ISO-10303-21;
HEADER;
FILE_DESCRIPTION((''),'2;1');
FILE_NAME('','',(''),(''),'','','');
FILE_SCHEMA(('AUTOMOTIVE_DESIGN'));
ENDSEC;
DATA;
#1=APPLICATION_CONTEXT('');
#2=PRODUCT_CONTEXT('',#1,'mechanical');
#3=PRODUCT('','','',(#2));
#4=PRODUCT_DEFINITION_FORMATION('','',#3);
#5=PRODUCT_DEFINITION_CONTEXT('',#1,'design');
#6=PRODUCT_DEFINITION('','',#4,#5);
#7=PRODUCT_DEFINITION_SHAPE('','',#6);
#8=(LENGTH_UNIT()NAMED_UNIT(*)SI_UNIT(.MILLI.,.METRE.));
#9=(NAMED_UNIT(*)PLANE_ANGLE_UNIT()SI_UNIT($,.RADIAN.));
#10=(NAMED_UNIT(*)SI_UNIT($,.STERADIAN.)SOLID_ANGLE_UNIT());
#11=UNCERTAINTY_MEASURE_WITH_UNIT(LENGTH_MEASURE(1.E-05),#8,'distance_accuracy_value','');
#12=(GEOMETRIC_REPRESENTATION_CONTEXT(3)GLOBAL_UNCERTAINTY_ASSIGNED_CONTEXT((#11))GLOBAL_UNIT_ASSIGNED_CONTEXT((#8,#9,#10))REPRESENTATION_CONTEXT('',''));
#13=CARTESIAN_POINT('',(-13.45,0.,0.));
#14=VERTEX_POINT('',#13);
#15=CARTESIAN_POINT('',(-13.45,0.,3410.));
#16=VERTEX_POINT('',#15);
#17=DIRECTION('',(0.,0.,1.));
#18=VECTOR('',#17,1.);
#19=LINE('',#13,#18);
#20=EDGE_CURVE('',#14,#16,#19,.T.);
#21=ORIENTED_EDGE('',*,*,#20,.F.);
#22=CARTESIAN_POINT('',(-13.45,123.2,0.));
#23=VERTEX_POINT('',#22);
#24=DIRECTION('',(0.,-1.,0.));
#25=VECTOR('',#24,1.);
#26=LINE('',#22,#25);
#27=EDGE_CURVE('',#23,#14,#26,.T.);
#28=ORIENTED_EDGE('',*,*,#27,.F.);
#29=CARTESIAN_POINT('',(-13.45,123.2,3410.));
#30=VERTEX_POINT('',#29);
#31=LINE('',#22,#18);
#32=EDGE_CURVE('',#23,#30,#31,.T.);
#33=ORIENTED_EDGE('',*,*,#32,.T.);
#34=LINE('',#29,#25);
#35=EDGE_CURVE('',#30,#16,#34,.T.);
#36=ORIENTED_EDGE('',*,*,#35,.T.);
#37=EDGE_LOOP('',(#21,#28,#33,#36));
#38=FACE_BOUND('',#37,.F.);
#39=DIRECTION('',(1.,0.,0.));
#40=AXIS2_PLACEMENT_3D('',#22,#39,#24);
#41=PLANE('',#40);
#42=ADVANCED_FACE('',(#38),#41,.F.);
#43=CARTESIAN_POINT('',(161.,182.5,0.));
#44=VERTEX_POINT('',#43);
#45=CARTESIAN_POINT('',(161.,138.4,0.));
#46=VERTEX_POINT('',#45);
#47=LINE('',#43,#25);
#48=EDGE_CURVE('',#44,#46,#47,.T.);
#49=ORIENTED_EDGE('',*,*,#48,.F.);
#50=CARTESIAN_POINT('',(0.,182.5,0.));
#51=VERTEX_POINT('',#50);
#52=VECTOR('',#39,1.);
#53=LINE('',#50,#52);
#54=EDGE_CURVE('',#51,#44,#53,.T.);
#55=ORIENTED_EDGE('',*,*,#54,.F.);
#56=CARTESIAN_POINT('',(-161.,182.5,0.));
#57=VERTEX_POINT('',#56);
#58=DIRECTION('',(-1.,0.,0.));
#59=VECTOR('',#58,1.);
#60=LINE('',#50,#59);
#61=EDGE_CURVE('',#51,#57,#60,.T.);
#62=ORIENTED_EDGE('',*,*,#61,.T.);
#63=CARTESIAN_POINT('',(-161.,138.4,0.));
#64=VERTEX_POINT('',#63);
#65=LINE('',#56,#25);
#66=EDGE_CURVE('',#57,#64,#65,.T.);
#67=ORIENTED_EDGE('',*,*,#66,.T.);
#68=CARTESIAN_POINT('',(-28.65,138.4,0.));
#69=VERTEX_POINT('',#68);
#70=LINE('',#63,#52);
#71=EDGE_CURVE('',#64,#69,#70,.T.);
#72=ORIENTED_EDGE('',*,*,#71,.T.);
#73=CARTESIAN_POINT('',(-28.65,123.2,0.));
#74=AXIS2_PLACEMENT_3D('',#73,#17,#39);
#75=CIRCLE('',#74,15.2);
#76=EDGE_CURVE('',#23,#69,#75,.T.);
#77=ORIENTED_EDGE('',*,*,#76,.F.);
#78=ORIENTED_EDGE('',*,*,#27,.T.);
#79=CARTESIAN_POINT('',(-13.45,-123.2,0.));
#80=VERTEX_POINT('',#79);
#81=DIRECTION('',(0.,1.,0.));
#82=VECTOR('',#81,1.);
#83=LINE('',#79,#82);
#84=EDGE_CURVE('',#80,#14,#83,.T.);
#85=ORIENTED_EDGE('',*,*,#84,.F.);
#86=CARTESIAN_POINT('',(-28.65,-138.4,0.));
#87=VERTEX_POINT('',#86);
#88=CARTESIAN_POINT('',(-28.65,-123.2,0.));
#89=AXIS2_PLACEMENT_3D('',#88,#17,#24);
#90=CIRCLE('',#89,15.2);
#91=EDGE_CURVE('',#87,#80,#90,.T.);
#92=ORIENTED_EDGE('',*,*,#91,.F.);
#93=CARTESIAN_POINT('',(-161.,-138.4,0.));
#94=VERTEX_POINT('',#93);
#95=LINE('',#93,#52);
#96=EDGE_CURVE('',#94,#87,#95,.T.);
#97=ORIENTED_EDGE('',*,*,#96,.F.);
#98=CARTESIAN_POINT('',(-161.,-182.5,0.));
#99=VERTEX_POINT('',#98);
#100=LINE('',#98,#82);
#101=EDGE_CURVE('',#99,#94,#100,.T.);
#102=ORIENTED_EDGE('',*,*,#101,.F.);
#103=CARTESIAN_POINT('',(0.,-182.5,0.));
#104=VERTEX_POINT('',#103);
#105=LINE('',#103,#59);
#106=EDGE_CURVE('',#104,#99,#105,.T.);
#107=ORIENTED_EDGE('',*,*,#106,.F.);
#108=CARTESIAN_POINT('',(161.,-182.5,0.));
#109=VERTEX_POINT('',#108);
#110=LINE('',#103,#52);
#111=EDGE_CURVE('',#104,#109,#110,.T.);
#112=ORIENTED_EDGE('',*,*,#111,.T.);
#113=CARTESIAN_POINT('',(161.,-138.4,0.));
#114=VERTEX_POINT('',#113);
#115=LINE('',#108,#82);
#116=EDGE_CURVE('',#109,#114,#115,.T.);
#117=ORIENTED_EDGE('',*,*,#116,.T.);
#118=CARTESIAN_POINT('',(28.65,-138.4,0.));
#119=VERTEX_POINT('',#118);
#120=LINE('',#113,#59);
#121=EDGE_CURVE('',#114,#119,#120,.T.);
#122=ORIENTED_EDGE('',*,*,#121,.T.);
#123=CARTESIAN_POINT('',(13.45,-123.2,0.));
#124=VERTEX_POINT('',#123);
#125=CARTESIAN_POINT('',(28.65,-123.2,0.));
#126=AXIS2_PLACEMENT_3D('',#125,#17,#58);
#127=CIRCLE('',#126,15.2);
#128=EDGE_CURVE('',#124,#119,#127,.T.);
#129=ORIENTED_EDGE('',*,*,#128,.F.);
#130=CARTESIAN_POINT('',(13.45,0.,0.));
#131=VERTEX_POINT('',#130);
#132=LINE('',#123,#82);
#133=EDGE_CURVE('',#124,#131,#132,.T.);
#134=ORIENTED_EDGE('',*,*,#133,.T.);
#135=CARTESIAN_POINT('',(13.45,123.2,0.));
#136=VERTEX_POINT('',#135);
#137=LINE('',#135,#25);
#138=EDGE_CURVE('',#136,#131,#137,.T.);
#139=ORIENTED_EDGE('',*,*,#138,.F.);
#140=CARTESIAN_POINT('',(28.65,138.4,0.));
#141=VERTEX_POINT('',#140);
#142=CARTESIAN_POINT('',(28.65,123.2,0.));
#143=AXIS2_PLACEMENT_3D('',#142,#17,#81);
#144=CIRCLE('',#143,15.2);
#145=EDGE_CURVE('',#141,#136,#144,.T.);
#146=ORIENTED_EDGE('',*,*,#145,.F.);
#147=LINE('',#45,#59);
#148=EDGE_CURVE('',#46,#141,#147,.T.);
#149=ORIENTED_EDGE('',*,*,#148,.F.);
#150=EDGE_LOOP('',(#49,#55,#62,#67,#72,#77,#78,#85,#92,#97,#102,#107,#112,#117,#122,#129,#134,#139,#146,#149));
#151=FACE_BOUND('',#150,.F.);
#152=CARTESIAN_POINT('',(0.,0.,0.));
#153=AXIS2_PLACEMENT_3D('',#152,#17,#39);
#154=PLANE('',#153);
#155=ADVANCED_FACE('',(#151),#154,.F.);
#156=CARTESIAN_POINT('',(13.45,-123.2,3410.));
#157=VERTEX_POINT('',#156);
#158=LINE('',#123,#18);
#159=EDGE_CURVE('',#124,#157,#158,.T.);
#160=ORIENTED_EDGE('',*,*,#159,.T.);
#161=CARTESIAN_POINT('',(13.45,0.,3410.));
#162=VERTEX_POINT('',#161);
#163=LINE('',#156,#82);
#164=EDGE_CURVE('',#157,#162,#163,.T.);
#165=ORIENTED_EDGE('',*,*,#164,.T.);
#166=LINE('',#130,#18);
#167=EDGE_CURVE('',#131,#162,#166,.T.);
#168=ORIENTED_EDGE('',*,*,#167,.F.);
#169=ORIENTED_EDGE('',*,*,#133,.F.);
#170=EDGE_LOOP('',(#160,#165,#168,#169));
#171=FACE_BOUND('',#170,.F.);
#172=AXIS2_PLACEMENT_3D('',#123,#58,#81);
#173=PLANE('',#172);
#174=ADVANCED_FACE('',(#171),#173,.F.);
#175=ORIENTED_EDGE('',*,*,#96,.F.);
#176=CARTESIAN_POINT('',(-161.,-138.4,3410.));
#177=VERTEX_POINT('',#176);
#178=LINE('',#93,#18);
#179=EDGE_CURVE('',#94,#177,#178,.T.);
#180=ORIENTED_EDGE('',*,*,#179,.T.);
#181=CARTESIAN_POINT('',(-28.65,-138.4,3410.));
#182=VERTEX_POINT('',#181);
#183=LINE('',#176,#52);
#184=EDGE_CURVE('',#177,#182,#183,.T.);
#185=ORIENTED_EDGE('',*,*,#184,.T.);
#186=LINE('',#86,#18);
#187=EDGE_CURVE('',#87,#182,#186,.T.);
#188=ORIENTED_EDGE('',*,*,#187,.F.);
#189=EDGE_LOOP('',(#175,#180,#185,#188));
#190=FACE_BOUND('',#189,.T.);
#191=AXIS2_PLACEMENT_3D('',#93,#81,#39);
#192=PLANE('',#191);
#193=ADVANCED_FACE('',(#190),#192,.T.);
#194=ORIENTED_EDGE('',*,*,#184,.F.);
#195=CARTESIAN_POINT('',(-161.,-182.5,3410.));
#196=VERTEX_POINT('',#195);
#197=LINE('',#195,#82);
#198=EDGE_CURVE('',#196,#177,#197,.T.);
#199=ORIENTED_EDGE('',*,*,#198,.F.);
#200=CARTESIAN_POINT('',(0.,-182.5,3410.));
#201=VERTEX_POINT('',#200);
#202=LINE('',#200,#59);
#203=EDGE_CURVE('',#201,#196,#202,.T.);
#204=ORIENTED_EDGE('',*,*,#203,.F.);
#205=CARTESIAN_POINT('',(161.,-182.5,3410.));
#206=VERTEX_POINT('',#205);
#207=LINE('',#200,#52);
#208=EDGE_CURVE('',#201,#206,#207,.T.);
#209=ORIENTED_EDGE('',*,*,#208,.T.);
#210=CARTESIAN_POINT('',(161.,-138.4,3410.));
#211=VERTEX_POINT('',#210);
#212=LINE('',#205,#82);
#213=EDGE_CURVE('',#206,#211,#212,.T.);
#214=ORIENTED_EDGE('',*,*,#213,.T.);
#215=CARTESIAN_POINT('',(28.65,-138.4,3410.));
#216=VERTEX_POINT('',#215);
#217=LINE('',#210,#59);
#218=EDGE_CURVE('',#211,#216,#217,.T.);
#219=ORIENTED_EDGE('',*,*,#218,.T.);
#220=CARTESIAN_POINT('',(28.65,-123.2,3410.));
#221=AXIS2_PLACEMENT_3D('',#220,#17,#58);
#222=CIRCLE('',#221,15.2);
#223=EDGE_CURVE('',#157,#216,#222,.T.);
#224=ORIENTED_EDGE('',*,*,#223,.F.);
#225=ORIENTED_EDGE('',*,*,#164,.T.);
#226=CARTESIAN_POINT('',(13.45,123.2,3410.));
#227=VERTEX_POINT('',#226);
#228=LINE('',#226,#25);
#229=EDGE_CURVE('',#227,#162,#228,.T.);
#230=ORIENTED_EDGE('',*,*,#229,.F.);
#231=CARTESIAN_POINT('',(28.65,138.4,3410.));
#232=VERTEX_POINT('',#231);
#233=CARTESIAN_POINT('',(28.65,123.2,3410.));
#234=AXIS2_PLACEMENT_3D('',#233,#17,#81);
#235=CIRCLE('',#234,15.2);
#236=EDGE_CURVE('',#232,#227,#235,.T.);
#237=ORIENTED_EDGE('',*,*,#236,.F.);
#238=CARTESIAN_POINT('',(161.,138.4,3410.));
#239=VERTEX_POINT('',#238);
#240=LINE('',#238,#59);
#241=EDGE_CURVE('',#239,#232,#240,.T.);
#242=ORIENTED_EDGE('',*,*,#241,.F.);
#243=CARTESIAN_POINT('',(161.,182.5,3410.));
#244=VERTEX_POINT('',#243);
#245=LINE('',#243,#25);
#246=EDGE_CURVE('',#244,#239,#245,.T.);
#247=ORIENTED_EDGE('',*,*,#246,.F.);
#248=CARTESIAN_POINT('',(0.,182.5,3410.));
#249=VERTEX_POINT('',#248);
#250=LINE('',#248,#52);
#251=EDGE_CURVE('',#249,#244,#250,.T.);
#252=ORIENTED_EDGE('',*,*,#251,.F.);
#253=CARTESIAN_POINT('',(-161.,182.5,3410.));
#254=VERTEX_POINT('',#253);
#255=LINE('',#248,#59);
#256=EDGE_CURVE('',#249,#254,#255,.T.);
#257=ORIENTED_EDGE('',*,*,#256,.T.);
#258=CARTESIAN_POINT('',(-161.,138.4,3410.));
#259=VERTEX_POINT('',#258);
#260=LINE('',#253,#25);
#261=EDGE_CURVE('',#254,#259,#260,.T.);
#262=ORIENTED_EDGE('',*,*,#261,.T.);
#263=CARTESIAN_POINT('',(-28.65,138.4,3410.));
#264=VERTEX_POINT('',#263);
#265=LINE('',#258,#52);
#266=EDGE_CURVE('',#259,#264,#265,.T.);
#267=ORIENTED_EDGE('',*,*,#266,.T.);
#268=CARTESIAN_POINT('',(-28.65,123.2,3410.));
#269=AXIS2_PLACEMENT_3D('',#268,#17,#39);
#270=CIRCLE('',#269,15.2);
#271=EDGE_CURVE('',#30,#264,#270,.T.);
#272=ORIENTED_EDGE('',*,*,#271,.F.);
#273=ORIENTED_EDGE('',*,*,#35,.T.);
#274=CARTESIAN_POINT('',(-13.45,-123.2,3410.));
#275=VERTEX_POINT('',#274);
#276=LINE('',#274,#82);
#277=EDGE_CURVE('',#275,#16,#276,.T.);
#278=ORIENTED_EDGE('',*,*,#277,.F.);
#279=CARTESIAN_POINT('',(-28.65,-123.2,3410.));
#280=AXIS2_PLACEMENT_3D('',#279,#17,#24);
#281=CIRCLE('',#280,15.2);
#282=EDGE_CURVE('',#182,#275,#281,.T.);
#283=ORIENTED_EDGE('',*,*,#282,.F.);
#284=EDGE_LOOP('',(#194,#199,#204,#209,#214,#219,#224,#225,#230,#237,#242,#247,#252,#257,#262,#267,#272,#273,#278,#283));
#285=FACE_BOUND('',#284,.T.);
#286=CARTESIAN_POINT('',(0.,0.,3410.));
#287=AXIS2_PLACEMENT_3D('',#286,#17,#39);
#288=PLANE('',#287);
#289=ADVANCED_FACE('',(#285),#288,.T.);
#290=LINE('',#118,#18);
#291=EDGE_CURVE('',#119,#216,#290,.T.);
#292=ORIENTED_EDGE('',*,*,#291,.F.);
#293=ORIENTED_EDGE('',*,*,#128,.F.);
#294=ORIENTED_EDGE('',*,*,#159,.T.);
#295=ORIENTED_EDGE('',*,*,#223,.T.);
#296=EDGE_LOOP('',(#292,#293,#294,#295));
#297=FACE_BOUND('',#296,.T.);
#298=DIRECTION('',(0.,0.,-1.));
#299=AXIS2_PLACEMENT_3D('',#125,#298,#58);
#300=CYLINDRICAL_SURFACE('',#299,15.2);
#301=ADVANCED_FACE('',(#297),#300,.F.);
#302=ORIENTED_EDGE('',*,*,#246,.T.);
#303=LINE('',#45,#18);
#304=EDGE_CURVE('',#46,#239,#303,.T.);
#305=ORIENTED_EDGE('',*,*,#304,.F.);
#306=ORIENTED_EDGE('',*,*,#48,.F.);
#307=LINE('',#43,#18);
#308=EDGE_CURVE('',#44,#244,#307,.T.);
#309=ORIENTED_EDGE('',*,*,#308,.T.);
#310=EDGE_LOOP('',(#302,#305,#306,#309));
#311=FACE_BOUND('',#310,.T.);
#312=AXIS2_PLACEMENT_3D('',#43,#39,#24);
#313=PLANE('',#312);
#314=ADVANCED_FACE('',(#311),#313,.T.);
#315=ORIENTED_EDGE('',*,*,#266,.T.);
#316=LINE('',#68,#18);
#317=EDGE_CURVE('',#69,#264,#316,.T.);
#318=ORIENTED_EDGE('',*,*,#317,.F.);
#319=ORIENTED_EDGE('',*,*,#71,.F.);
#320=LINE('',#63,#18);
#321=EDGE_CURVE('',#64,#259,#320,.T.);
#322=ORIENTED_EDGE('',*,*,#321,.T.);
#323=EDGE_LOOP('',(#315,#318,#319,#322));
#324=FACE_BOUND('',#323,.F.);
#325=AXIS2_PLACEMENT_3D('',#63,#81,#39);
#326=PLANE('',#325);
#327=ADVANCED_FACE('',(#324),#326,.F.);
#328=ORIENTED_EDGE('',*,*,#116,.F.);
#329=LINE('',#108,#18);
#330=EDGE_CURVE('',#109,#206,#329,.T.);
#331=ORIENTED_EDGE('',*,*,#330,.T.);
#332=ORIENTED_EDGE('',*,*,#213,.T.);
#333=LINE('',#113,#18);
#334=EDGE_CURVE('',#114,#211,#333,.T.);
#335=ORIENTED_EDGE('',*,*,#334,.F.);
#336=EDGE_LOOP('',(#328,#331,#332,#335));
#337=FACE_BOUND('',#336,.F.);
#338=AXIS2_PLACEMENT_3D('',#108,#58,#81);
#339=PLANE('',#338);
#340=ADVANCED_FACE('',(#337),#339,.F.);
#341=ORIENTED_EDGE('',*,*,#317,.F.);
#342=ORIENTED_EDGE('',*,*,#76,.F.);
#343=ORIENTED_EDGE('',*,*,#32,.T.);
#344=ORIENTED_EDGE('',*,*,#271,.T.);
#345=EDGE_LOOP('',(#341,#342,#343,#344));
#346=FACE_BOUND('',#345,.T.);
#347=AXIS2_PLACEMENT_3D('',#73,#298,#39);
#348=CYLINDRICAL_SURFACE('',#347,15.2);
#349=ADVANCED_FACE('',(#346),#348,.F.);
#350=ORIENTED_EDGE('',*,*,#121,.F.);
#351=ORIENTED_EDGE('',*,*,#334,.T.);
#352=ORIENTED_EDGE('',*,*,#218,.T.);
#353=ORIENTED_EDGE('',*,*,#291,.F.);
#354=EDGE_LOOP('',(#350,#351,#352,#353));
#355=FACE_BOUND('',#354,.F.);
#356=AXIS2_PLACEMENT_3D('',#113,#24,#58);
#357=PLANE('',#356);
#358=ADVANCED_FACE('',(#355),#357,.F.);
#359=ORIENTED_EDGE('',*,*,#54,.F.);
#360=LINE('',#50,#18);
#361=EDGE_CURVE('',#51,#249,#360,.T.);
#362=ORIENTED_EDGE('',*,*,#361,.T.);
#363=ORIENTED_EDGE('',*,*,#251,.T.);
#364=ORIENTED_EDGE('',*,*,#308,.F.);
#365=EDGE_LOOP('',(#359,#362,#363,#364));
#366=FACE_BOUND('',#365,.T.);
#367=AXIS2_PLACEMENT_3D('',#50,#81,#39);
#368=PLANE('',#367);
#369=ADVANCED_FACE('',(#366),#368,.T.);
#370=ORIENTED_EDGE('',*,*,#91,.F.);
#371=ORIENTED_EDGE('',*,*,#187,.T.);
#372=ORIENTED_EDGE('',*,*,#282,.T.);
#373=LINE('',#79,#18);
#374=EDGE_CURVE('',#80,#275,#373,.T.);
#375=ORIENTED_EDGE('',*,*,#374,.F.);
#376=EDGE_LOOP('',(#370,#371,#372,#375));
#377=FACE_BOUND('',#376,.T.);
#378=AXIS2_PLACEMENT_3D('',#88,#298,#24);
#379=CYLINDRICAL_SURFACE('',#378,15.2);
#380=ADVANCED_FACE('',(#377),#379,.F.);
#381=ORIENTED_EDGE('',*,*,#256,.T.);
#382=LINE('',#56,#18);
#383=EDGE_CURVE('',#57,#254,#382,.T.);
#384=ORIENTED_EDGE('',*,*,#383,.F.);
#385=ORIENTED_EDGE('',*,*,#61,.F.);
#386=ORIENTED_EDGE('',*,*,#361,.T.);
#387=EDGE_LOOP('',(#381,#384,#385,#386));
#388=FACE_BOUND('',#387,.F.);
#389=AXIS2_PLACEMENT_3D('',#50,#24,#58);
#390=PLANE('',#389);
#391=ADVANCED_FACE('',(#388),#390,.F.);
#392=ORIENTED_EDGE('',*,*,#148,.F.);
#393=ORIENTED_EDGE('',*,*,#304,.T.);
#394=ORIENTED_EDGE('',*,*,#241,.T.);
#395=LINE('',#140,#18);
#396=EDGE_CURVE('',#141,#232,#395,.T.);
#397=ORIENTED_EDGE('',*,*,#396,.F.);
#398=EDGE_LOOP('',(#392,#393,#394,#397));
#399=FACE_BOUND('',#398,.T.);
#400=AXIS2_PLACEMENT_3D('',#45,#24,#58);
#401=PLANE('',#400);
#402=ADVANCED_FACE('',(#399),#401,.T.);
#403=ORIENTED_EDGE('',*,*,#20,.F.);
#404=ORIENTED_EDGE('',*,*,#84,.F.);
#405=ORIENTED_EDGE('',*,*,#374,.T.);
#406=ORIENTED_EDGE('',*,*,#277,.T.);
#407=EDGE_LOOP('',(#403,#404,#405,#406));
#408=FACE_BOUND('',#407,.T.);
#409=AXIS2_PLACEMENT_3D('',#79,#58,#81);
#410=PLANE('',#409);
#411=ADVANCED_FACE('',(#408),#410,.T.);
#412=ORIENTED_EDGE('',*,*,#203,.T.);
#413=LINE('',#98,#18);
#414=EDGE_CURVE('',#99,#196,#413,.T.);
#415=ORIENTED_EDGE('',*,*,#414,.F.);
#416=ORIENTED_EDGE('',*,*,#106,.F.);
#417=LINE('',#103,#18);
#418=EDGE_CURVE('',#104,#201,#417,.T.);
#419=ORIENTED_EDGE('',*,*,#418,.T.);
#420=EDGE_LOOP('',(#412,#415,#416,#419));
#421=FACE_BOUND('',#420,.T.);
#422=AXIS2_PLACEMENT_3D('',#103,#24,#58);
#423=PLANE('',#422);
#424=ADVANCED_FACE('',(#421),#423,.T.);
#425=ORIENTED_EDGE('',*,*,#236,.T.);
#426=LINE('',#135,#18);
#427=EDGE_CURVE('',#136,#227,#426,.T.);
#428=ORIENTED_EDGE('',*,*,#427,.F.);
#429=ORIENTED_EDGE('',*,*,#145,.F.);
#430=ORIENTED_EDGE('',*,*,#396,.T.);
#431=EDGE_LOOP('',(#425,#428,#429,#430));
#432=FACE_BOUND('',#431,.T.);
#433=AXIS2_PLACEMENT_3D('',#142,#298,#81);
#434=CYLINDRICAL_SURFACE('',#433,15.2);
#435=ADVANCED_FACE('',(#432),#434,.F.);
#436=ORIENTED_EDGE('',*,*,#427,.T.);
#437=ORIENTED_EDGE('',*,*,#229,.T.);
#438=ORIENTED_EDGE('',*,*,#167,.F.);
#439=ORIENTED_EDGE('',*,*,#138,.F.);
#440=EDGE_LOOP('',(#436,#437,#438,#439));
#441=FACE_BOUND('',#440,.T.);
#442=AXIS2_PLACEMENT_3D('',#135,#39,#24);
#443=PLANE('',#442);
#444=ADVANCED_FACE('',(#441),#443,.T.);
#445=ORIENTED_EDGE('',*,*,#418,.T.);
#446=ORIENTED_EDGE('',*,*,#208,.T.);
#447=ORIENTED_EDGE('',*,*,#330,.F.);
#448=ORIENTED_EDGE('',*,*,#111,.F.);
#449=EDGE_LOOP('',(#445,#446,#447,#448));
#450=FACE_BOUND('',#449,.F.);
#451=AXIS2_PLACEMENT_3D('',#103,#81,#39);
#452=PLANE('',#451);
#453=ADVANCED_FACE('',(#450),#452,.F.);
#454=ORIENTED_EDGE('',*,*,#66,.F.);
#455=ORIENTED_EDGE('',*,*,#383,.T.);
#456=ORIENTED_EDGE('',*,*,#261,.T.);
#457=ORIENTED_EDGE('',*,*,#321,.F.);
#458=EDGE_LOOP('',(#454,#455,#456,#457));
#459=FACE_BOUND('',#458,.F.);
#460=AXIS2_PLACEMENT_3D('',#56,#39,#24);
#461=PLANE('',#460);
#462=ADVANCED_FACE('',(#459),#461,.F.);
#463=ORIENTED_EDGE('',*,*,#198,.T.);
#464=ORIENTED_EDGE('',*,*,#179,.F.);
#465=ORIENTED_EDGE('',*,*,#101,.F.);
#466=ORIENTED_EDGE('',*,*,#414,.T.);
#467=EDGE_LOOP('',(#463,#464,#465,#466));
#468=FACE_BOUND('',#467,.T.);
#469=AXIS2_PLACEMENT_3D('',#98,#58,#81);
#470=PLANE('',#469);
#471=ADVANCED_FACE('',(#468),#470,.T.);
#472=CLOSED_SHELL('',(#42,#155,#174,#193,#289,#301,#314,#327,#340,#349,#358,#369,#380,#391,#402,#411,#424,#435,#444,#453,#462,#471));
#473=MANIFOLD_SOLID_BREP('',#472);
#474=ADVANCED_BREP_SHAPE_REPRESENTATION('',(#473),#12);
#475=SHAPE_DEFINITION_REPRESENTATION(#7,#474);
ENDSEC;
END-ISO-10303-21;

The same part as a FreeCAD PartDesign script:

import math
import FreeCAD as App
import Part
import Sketcher
from FreeCAD import Vector
Q = App.Units.Quantity

doc = App.newDocument("Part")
params = doc.addObject("Spreadsheet::Sheet", "Params")
for row, (alias, value) in enumerate([
    ("sketch1_radius", "15.2 mm"),
    ("sketch1_height", "44.1 mm"),
    ("pad1_length", "3410 mm"),
], start=1):
    params.set(f"A{row}", alias)
    params.set(f"B{row}", "=" + value)
    params.setAlias(f"B{row}", alias)

body = doc.addObject("PartDesign::Body", "Body")

sketch1 = body.newObject("Sketcher::SketchObject", "Sketch")
sketch1.AttachmentSupport = (doc.getObject("XY_Plane"), [""])
sketch1.MapMode = "FlatFace"
sketch1.addGeometry(Part.LineSegment(Vector(-161, -138, 0), Vector(-161, -182, 0)), False)
sketch1.addGeometry(Part.LineSegment(Vector(-161, -182, 0), Vector(161, -182, 0)), False)
sketch1.addGeometry(Part.LineSegment(Vector(161, -182, 0), Vector(161, -138, 0)), False)
sketch1.addGeometry(Part.LineSegment(Vector(161, -138, 0), Vector(29, -138, 0)), False)
sketch1.addGeometry(Part.ArcOfCircle(Part.Circle(Vector(29, -123, 0), Vector(0, 0, 1), 15), math.radians(180), math.radians(270)), False)
sketch1.addGeometry(Part.LineSegment(Vector(13, -123, 0), Vector(13, 123, 0)), False)
sketch1.addGeometry(Part.ArcOfCircle(Part.Circle(Vector(29, 123, 0), Vector(0, 0, 1), 15), math.radians(90), math.radians(180)), False)
sketch1.addGeometry(Part.LineSegment(Vector(29, 138, 0), Vector(161, 138, 0)), False)
sketch1.addGeometry(Part.LineSegment(Vector(161, 138, 0), Vector(161, 182, 0)), False)
sketch1.addGeometry(Part.LineSegment(Vector(161, 182, 0), Vector(-161, 182, 0)), False)
sketch1.addGeometry(Part.LineSegment(Vector(-161, 182, 0), Vector(-161, 138, 0)), False)
sketch1.addGeometry(Part.LineSegment(Vector(-161, 138, 0), Vector(-29, 138, 0)), False)
sketch1.addGeometry(Part.ArcOfCircle(Part.Circle(Vector(-29, 123, 0), Vector(0, 0, 1), 15), math.radians(0), math.radians(90)), False)
sketch1.addGeometry(Part.LineSegment(Vector(-13, 123, 0), Vector(-13, -123, 0)), False)
sketch1.addGeometry(Part.ArcOfCircle(Part.Circle(Vector(-29, -123, 0), Vector(0, 0, 1), 15), math.radians(-90), math.radians(0)), False)
sketch1.addGeometry(Part.LineSegment(Vector(-29, -138, 0), Vector(-161, -138, 0)), False)
sketch1.addConstraint(Sketcher.Constraint("Coincident", 0, 2, 1, 1))
sketch1.addConstraint(Sketcher.Constraint("Coincident", 1, 2, 2, 1))
sketch1.addConstraint(Sketcher.Constraint("Coincident", 2, 2, 3, 1))
sketch1.addConstraint(Sketcher.Constraint("Tangent", 3, 2, 4, 2))
sketch1.addConstraint(Sketcher.Constraint("Tangent", 4, 1, 5, 1))
sketch1.addConstraint(Sketcher.Constraint("Tangent", 5, 2, 6, 2))
sketch1.addConstraint(Sketcher.Constraint("Tangent", 6, 1, 7, 1))
sketch1.addConstraint(Sketcher.Constraint("Coincident", 7, 2, 8, 1))
sketch1.addConstraint(Sketcher.Constraint("Coincident", 8, 2, 9, 1))
sketch1.addConstraint(Sketcher.Constraint("Coincident", 9, 2, 10, 1))
sketch1.addConstraint(Sketcher.Constraint("Coincident", 10, 2, 11, 1))
sketch1.addConstraint(Sketcher.Constraint("Tangent", 11, 2, 12, 2))
sketch1.addConstraint(Sketcher.Constraint("Tangent", 12, 1, 13, 1))
sketch1.addConstraint(Sketcher.Constraint("Tangent", 13, 2, 14, 2))
sketch1.addConstraint(Sketcher.Constraint("Tangent", 14, 1, 15, 1))
sketch1.addConstraint(Sketcher.Constraint("Coincident", 15, 2, 0, 1))
sketch1.addConstraint(Sketcher.Constraint("Vertical", 0))
sketch1.addConstraint(Sketcher.Constraint("Horizontal", 1))
sketch1.addConstraint(Sketcher.Constraint("Vertical", 2))
sketch1.addConstraint(Sketcher.Constraint("Horizontal", 3))
sketch1.addConstraint(Sketcher.Constraint("Vertical", 5))
sketch1.addConstraint(Sketcher.Constraint("Horizontal", 7))
sketch1.addConstraint(Sketcher.Constraint("Vertical", 8))
sketch1.addConstraint(Sketcher.Constraint("Horizontal", 9))
sketch1.addConstraint(Sketcher.Constraint("Vertical", 10))
sketch1.addConstraint(Sketcher.Constraint("Horizontal", 11))
sketch1.addConstraint(Sketcher.Constraint("Vertical", 13))
sketch1.addConstraint(Sketcher.Constraint("Horizontal", 15))
sketch1.addConstraint(Sketcher.Constraint("Equal", 4, 6))
sketch1.addConstraint(Sketcher.Constraint("Equal", 6, 12))
sketch1.addConstraint(Sketcher.Constraint("Equal", 12, 14))
sketch1.addConstraint(Sketcher.Constraint("Symmetric", 4, 3, 12, 3, -1, 1))
sketch1.addConstraint(Sketcher.Constraint("Symmetric", 0, 2, 8, 2, -1, 1))
sketch1.addConstraint(Sketcher.Constraint("Symmetric", 7, 2, 10, 2, -2))
sketch1.addConstraint(Sketcher.Constraint("Symmetric", 2, 2, 15, 2, -2))
sketch1.addConstraint(Sketcher.Constraint("Radius", 4, Q("15.2 mm")))
sketch1.addConstraint(Sketcher.Constraint("DistanceY", 0, 2, 0, 1, Q("44.1 mm")))
sketch1.addConstraint(Sketcher.Constraint("DistanceX", 0, 2, -1, 1, Q("161 mm")))
sketch1.addConstraint(Sketcher.Constraint("DistanceY", 0, 2, -1, 1, Q("182.5 mm")))
sketch1.addConstraint(Sketcher.Constraint("DistanceX", -1, 1, 4, 1, Q("13.45 mm")))
sketch1.setExpression("Constraints[35]", "Params.sketch1_radius")
sketch1.setExpression("Constraints[36]", "Params.sketch1_height")
pad1 = body.newObject("PartDesign::Pad", "Pad")
pad1.Profile = sketch1
pad1.setExpression("Length", "Params.pad1_length")

doc.recompute()
